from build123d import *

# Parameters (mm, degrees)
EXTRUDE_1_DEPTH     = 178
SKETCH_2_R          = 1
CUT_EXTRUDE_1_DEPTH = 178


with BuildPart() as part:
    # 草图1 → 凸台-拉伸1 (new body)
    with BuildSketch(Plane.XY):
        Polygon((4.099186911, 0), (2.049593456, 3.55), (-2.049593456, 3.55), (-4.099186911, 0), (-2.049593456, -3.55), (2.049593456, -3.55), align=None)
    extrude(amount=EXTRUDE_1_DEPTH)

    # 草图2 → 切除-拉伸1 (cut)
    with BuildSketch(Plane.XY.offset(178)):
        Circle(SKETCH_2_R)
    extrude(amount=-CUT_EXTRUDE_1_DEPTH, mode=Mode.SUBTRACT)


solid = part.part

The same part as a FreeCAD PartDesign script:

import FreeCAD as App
import Part
import Sketcher
Q = App.Units.Quantity


def add_polygon(sketch, points):
    """Adds a closed chain of lines whose ends are joined by coincident constraints."""
    first, n = sketch.GeometryCount, len(points)
    for a, b in zip(points, points[1:] + points[:1]):
        sketch.addGeometry(Part.LineSegment(App.Vector(*a, 0), App.Vector(*b, 0)), False)
    for i in range(n):
        sketch.addConstraint(Sketcher.Constraint("Coincident", first + i, 2, first + (i + 1) % n, 1))

doc = App.newDocument("Part")
body = doc.addObject("PartDesign::Body", "Body")

# Sketch on XY plane
sketch1 = body.newObject("Sketcher::SketchObject", "Sketch")
sketch1.AttachmentSupport = (doc.getObject("XY_Plane"), [""])
sketch1.MapMode = "FlatFace"
add_polygon(sketch1, [(4.1, 0), (2, 3.5), (-2, 3.5), (-4.1, 0), (-2, -3.5), (2, -3.5)])  # lines 0-5
sketch1.addConstraint(Sketcher.Constraint("Horizontal", 1))
sketch1.addConstraint(Sketcher.Constraint("Horizontal", 4))
sketch1.addConstraint(Sketcher.Constraint("Symmetric", 0, 2, 3, 2, -1, 1))
sketch1.addConstraint(Sketcher.Constraint("Symmetric", 2, 2, 5, 2, -1, 1))
sketch1.addConstraint(Sketcher.Constraint("PointOnObject", 2, 2, -1))
sketch1.addConstraint(Sketcher.Constraint("Parallel", 2, 5))
sketch1.addConstraint(Sketcher.Constraint("Vertical", 1, 2, 3, 2))
sketch1.addConstraint(Sketcher.Constraint("Angle", 0, Q("120 deg")))
sketch1.addConstraint(Sketcher.Constraint("DistanceY", 3, 2, 1, 2, 7.1))
sketch1.addConstraint(Sketcher.Constraint("DistanceX", 1, 2, 1, 1, 4.099187))
pad1 = body.newObject("PartDesign::Pad", "Pad")
pad1.Profile = sketch1
pad1.Length = 178

# Sketch on XY plane
sketch2 = body.newObject("Sketcher::SketchObject", "Sketch001")
sketch2.AttachmentSupport = (doc.getObject("XY_Plane"), [""])
sketch2.MapMode = "FlatFace"
sketch2.AttachmentOffset = App.Placement(App.Vector(0, 0, 178), App.Rotation())
sketch2.addGeometry(Part.Circle(App.Vector(0, 0, 0), App.Vector(0, 0, 1), 1), False)
sketch2.addConstraint(Sketcher.Constraint("Coincident", 0, 3, -1, 1))
sketch2.addConstraint(Sketcher.Constraint("Diameter", 0, 2.0))
pocket1 = body.newObject("PartDesign::Pocket", "Pocket")
pocket1.Profile = sketch2
pocket1.Length = 178

doc.recompute()
